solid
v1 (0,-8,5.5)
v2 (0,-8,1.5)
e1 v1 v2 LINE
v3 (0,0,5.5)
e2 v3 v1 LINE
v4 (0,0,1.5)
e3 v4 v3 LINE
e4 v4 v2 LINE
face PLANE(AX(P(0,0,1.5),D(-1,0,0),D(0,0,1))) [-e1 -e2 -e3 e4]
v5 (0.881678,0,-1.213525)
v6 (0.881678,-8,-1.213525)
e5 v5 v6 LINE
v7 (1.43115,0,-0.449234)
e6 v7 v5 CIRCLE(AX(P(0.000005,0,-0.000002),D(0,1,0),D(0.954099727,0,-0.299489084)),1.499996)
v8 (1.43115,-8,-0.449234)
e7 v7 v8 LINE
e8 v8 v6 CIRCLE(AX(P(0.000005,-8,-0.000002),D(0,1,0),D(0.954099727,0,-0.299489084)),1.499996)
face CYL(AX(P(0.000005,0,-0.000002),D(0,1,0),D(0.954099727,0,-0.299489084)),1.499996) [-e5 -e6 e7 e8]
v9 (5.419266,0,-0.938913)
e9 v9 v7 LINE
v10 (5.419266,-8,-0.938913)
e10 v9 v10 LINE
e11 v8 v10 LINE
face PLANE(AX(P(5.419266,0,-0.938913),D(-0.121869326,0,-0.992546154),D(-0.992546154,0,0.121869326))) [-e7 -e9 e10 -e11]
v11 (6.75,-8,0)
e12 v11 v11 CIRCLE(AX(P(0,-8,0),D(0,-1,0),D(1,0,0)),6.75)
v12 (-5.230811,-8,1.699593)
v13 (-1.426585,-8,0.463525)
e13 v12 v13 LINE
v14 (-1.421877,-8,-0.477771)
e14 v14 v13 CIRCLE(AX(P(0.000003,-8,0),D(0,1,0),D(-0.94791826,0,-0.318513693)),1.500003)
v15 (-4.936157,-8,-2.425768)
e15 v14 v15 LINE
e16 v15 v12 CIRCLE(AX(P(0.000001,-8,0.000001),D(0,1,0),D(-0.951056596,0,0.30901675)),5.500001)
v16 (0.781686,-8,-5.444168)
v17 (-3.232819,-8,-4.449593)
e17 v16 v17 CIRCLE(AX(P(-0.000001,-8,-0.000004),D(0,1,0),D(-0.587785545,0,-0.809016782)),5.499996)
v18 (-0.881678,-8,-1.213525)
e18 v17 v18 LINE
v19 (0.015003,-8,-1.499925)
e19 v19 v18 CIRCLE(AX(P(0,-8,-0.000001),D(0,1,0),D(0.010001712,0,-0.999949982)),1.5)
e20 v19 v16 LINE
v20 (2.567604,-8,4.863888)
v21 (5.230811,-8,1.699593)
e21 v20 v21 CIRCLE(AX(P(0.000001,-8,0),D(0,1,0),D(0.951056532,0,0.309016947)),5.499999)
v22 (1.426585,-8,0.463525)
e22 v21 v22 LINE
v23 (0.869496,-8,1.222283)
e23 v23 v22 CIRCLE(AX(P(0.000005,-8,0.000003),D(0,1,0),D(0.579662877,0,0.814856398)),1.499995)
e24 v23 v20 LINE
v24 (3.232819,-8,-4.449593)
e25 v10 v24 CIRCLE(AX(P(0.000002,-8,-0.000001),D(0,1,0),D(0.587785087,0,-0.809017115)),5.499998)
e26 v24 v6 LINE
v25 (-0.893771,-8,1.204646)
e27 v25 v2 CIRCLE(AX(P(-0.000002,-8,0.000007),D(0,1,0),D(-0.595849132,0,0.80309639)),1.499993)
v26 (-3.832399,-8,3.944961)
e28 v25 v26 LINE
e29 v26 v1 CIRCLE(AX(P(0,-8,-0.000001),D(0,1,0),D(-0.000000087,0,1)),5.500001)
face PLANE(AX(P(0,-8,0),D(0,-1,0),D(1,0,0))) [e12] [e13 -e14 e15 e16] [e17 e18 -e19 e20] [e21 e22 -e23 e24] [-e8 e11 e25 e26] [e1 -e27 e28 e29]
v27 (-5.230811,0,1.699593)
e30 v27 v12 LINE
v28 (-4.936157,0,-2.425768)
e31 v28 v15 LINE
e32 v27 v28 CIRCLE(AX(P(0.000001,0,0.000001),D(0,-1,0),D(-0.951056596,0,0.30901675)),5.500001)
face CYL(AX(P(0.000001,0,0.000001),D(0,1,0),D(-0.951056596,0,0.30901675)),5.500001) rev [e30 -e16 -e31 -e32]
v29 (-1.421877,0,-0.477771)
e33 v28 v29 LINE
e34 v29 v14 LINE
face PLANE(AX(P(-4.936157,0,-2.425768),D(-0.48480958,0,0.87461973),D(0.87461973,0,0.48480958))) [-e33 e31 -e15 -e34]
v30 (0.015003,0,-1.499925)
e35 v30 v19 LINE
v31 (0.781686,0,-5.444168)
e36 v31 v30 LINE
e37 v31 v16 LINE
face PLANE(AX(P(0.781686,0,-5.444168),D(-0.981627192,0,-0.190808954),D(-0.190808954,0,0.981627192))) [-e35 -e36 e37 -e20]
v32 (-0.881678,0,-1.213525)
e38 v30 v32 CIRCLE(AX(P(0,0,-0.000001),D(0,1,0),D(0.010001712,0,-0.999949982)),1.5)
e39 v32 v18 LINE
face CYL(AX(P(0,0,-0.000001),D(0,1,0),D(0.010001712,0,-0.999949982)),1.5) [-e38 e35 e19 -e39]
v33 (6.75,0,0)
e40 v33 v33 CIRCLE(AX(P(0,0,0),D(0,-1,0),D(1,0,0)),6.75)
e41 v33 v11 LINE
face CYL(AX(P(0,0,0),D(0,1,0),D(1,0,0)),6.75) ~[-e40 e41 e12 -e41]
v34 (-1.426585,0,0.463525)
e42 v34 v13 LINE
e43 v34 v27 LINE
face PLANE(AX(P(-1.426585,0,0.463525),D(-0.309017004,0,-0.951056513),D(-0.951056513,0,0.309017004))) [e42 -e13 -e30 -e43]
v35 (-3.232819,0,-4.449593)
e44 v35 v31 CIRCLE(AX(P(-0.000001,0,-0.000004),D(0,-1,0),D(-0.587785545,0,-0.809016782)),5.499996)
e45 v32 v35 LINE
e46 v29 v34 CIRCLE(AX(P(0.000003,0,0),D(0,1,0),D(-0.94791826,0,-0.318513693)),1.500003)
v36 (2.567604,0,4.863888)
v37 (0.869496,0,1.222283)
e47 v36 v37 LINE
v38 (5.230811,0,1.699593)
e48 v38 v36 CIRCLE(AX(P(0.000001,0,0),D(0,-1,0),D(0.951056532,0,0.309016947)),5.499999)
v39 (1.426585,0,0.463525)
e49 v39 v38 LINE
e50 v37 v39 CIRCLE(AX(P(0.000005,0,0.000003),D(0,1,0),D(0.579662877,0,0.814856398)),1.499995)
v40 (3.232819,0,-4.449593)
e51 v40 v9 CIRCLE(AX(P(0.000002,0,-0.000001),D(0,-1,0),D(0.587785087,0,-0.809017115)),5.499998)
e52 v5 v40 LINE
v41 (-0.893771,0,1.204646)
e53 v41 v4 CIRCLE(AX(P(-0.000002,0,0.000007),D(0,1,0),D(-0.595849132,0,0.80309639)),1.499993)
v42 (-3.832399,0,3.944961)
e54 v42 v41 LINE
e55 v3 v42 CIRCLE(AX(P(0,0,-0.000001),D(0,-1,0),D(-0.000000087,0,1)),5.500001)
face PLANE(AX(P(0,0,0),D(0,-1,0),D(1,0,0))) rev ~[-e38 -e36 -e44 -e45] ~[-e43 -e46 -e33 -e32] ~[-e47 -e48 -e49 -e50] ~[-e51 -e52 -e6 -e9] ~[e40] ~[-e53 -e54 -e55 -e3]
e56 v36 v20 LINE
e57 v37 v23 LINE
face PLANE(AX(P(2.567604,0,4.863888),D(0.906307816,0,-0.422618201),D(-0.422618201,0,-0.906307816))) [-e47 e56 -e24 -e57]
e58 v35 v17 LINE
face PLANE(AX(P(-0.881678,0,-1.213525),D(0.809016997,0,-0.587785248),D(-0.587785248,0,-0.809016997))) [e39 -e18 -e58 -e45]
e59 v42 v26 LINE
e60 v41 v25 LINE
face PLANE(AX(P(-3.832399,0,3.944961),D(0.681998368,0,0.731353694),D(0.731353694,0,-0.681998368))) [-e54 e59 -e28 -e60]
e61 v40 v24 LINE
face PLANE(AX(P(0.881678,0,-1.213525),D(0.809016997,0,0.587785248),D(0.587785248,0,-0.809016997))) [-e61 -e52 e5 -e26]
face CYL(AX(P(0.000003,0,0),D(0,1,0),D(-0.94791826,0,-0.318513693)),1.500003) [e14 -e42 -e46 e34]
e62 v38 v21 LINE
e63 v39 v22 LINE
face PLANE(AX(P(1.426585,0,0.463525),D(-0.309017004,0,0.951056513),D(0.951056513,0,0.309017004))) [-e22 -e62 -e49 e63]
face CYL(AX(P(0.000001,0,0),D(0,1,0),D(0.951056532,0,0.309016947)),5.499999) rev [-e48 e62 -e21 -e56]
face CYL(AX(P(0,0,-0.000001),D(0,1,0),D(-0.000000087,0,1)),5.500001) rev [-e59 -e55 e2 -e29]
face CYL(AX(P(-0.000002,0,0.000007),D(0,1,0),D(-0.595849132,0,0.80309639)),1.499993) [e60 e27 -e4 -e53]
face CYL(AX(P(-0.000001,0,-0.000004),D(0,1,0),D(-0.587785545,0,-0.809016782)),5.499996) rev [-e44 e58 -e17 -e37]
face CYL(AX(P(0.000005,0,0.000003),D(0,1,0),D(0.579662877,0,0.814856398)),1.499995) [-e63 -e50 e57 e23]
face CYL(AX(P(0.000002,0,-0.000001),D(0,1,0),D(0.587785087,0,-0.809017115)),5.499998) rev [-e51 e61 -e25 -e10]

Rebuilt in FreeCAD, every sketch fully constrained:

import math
import FreeCAD as App
import Part
import Sketcher
from FreeCAD import Vector
Q = App.Units.Quantity

doc = App.newDocument("Part")
body = doc.addObject("PartDesign::Body", "Body")

sketch1 = body.newObject("Sketcher::SketchObject", "Sketch")
sketch1.AttachmentSupport = (doc.getObject("XZ_Plane"), [""])
sketch1.MapMode = "FlatFace"
sketch1.addGeometry(Part.Circle(Vector(0, 0, 0), Vector(0, 0, 1), 7), False)
sketch1.addConstraint(Sketcher.Constraint("Coincident", 0, 3, -1, 1))
sketch1.addConstraint(Sketcher.Constraint("Diameter", 0, 13.5))
pad1 = body.newObject("PartDesign::Pad", "Pad")
pad1.Profile = sketch1
pad1.Length = 8

sketch2 = body.newObject("Sketcher::SketchObject", "Sketch001")
sketch2.AttachmentSupport = (doc.getObject("XZ_Plane"), [""])
sketch2.MapMode = "FlatFace"
sketch2.addGeometry(Part.LineSegment(Vector(0, 1.5, 0), Vector(0, 5.5, 0)), False)
sketch2.addGeometry(Part.ArcOfCircle(Part.Circle(Vector(0, 0, 0), Vector(0, 0, 1), 5.5), math.radians(90), math.radians(134)), False)
sketch2.addGeometry(Part.LineSegment(Vector(-3.8, 3.9, 0), Vector(-0.9, 1.2, 0)), False)
sketch2.addGeometry(Part.ArcOfCircle(Part.Circle(Vector(0, 0, 0), Vector(0, 0, 1), 1.5), math.radians(90), math.radians(127)), False)
sketch2.addGeometry(Part.LineSegment(Vector(1.4, 0.5, 0), Vector(5.2, 1.7, 0)), False)
sketch2.addGeometry(Part.ArcOfCircle(Part.Circle(Vector(0, 0, 0), Vector(0, 0, 1), 5.5), math.radians(18), math.radians(62)), False)
sketch2.addGeometry(Part.LineSegment(Vector(2.6, 4.9, 0), Vector(0.9, 1.2, 0)), False)
sketch2.addGeometry(Part.ArcOfCircle(Part.Circle(Vector(0, 0, 0), Vector(0, 0, 1), 1.5), math.radians(18), math.radians(55)), False)
sketch2.addGeometry(Part.ArcOfCircle(Part.Circle(Vector(0, 0, 0), Vector(0, 0, 1), 5.5), math.radians(-54), math.radians(-10)), False)
sketch2.addGeometry(Part.LineSegment(Vector(5.4, -0.9, 0), Vector(1.4, -0.4, 0)), False)
sketch2.addGeometry(Part.ArcOfCircle(Part.Circle(Vector(0, 0, 0), Vector(0, 0, 1), 1.5), math.radians(-54), math.radians(-17)), False)
sketch2.addGeometry(Part.LineSegment(Vector(0.9, -1.2, 0), Vector(3.2, -4.4, 0)), False)
sketch2.addGeometry(Part.LineSegment(Vector(-1.4, 0.5, 0), Vector(-5.2, 1.7, 0)), False)
sketch2.addGeometry(Part.ArcOfCircle(Part.Circle(Vector(0, 0, 0), Vector(0, 0, 1), 5.5), math.radians(162), math.radians(206)), False)
sketch2.addGeometry(Part.LineSegment(Vector(-4.9, -2.4, 0), Vector(-1.4, -0.5, 0)), False)
sketch2.addGeometry(Part.ArcOfCircle(Part.Circle(Vector(0, 0, 0), Vector(0, 0, 1), 1.5), math.radians(162), math.radians(199)), False)
sketch2.addGeometry(Part.ArcOfCircle(Part.Circle(Vector(0, 0, 0), Vector(0, 0, 1), 5.5), math.radians(-126), math.radians(-82)), False)
sketch2.addGeometry(Part.LineSegment(Vector(0.8, -5.4, 0), Vector(0, -1.5, 0)), False)
sketch2.addGeometry(Part.ArcOfCircle(Part.Circle(Vector(0, 0, 0), Vector(0, 0, 1), 1.5), math.radians(-126), math.radians(-89)), False)
sketch2.addGeometry(Part.LineSegment(Vector(-0.9, -1.2, 0), Vector(-3.2, -4.4, 0)), False)
sketch2.addConstraint(Sketcher.Constraint("Coincident", 0, 2, 1, 1))
sketch2.addConstraint(Sketcher.Constraint("Coincident", 1, 2, 2, 1))
sketch2.addConstraint(Sketcher.Constraint("Coincident", 2, 2, 3, 2))
sketch2.addConstraint(Sketcher.Constraint("Coincident", 3, 1, 0, 1))
sketch2.addConstraint(Sketcher.Constraint("Coincident", 4, 2, 5, 1))
sketch2.addConstraint(Sketcher.Constraint("Coincident", 5, 2, 6, 1))
sketch2.addConstraint(Sketcher.Constraint("Coincident", 6, 2, 7, 2))
sketch2.addConstraint(Sketcher.Constraint("Coincident", 7, 1, 4, 1))
sketch2.addConstraint(Sketcher.Constraint("Coincident", 8, 2, 9, 1))
sketch2.addConstraint(Sketcher.Constraint("Coincident", 9, 2, 10, 2))
sketch2.addConstraint(Sketcher.Constraint("Coincident", 10, 1, 11, 1))
sketch2.addConstraint(Sketcher.Constraint("Coincident", 11, 2, 8, 1))
sketch2.addConstraint(Sketcher.Constraint("Coincident", 12, 2, 13, 1))
sketch2.addConstraint(Sketcher.Constraint("Coincident", 13, 2, 14, 1))
sketch2.addConstraint(Sketcher.Constraint("Coincident", 14, 2, 15, 2))
sketch2.addConstraint(Sketcher.Constraint("Coincident", 15, 1, 12, 1))
sketch2.addConstraint(Sketcher.Constraint("Coincident", 16, 2, 17, 1))
sketch2.addConstraint(Sketcher.Constraint("Coincident", 17, 2, 18, 2))
sketch2.addConstraint(Sketcher.Constraint("Coincident", 18, 1, 19, 1))
sketch2.addConstraint(Sketcher.Constraint("Coincident", 19, 2, 16, 1))
sketch2.addConstraint(Sketcher.Constraint("Vertical", 0))
sketch2.addConstraint(Sketcher.Constraint("Coincident", 1, 3, -1, 1))
sketch2.addConstraint(Sketcher.Constraint("Coincident", 3, 3, -1, 1))
sketch2.addConstraint(Sketcher.Constraint("Coincident", 5, 3, -1, 1))
sketch2.addConstraint(Sketcher.Constraint("Coincident", 7, 3, -1, 1))
sketch2.addConstraint(Sketcher.Constraint("Coincident", 8, 3, -1, 1))
sketch2.addConstraint(Sketcher.Constraint("Coincident", 10, 3, -1, 1))
sketch2.addConstraint(Sketcher.Constraint("Coincident", 13, 3, -1, 1))
sketch2.addConstraint(Sketcher.Constraint("Coincident", 15, 3, -1, 1))
sketch2.addConstraint(Sketcher.Constraint("Coincident", 16, 3, -1, 1))
sketch2.addConstraint(Sketcher.Constraint("Coincident", 18, 3, -1, 1))
sketch2.addConstraint(Sketcher.Constraint("Equal", 1, 5))
sketch2.addConstraint(Sketcher.Constraint("Equal", 3, 7))
sketch2.addConstraint(Sketcher.Constraint("Equal", 5, 8))
sketch2.addConstraint(Sketcher.Constraint("Equal", 7, 10))
sketch2.addConstraint(Sketcher.Constraint("Equal", 5, 13))
sketch2.addConstraint(Sketcher.Constraint("Equal", 8, 16))
sketch2.addConstraint(Sketcher.Constraint("Symmetric", 7, 1, 15, 1, -2))
sketch2.addConstraint(Sketcher.Constraint("Symmetric", 10, 1, 18, 1, -2))
sketch2.addConstraint(Sketcher.Constraint("PointOnObject", 0, 2, -2))
sketch2.addConstraint(Sketcher.Constraint("Horizontal", 4, 2, 12, 2))
sketch2.addConstraint(Sketcher.Constraint("Horizontal", 11, 2, 19, 2))
sketch2.addConstraint(Sketcher.Constraint("Equal", 2, 6))
sketch2.addConstraint(Sketcher.Constraint("Equal", 6, 9))
sketch2.addConstraint(Sketcher.Constraint("Equal", 9, 14))
sketch2.addConstraint(Sketcher.Constraint("Equal", 14, 17))
sketch2.addConstraint(Sketcher.Constraint("Radius", 1, 5.500001))
sketch2.addConstraint(Sketcher.Constraint("Radius", 18, 1.5))
sketch2.addConstraint(Sketcher.Constraint("Angle", 2, Q("-43.000001 deg")))
sketch2.addConstraint(Sketcher.Constraint("Angle", 4, Q("18.000001 deg")))
sketch2.addConstraint(Sketcher.Constraint("Angle", 6, Q("-114.999996 deg")))
sketch2.addConstraint(Sketcher.Constraint("Angle", 9, Q("173.000001 deg")))
sketch2.addConstraint(Sketcher.Constraint("Angle", 11, Q("-54 deg")))
sketch2.addConstraint(Sketcher.Constraint("Angle", 14, Q("28.999997 deg")))
sketch2.addConstraint(Sketcher.Constraint("Angle", 17, Q("100.999998 deg")))
sketch2.addConstraint(Sketcher.Constraint("DistanceX", 10, 3, 17, 2, 0.014998))
sketch2.addConstraint(Sketcher.Constraint("DistanceY", 17, 2, 10, 1, 0.2864))
sketch2.addConstraint(Sketcher.Constraint("DistanceX", -1, 1, 4, 2, 5.230811))
pocket1 = body.newObject("PartDesign::Pocket", "Pocket")
pocket1.Profile = sketch2
pocket1.Type = "ThroughAll"
pocket1.Reversed = True

doc.recompute()
